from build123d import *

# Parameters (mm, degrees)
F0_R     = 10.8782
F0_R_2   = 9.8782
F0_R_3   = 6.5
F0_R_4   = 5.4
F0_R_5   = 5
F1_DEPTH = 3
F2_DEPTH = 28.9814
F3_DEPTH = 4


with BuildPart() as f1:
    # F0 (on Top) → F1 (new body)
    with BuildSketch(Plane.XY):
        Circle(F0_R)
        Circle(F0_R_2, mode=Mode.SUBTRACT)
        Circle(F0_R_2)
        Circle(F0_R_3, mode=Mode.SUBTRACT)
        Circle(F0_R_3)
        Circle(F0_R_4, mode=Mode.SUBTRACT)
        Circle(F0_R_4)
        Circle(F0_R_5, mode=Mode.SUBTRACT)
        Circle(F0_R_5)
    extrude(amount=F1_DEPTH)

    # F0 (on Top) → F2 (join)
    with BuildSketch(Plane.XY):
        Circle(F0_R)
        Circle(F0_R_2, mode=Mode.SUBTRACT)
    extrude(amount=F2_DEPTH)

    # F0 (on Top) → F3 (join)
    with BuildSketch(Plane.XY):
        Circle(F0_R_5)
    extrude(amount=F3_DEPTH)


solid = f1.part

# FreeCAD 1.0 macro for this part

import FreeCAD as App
import Part
import Sketcher

V = App.Vector

doc = App.newDocument("Part")
params = doc.addObject("Spreadsheet::Sheet", "Params")
for row, (alias, value) in enumerate([
    ("pad1_length", "3 mm"),
    ("pad2_length", "28.9814 mm"),
    ("sketch3_diameter", "10 mm"),
    ("pad3_length", "4 mm"),
], start=1):
    params.set(f"A{row}", alias)
    params.set(f"B{row}", "=" + value)
    params.setAlias(f"B{row}", alias)

body = doc.addObject("PartDesign::Body", "Body")

sketch1 = body.newObject("Sketcher::SketchObject", "Sketch")
sketch1.AttachmentSupport = (doc.getObject("XY_Plane"), [""])
sketch1.MapMode = "FlatFace"
sketch1.addGeometry(Part.Circle(V(0, 0, 0), V(0, 0, 1), 11), False)
sketch1.addConstraint(Sketcher.Constraint("Coincident", 0, 3, -1, 1))
sketch1.addConstraint(Sketcher.Constraint("Diameter", 0, 21.7564))
pad1 = body.newObject("PartDesign::Pad", "Pad")
pad1.Profile = sketch1
pad1.setExpression("Length", "Params.pad1_length")

sketch2 = body.newObject("Sketcher::SketchObject", "Sketch001")
sketch2.AttachmentSupport = (doc.getObject("XY_Plane"), [""])
sketch2.MapMode = "FlatFace"
sketch2.addGeometry(Part.Circle(V(0, 0, 0), V(0, 0, 1), 11), False)
sketch2.addGeometry(Part.Circle(V(0, 0, 0), V(0, 0, 1), 10), False)
sketch2.addConstraint(Sketcher.Constraint("Coincident", 0, 3, -1, 1))
sketch2.addConstraint(Sketcher.Constraint("Coincident", 1, 3, -1, 1))
sketch2.addConstraint(Sketcher.Constraint("Diameter", 0, 21.7564))
sketch2.addConstraint(Sketcher.Constraint("Diameter", 1, 19.7564))
pad2 = body.newObject("PartDesign::Pad", "Pad001")
pad2.Profile = sketch2
pad2.setExpression("Length", "Params.pad2_length")

sketch3 = body.newObject("Sketcher::SketchObject", "Sketch002")
sketch3.AttachmentSupport = (doc.getObject("XY_Plane"), [""])
sketch3.MapMode = "FlatFace"
sketch3.addGeometry(Part.Circle(V(0, 0, 0), V(0, 0, 1), 5), False)
sketch3.addConstraint(Sketcher.Constraint("Coincident", 0, 3, -1, 1))
sketch3.addConstraint(Sketcher.Constraint("Diameter", 0, 10.0))
sketch3.setExpression("Constraints[1]", "Params.sketch3_diameter")
pad3 = body.newObject("PartDesign::Pad", "Pad002")
pad3.Profile = sketch3
pad3.setExpression("Length", "Params.pad3_length")

doc.recompute()
